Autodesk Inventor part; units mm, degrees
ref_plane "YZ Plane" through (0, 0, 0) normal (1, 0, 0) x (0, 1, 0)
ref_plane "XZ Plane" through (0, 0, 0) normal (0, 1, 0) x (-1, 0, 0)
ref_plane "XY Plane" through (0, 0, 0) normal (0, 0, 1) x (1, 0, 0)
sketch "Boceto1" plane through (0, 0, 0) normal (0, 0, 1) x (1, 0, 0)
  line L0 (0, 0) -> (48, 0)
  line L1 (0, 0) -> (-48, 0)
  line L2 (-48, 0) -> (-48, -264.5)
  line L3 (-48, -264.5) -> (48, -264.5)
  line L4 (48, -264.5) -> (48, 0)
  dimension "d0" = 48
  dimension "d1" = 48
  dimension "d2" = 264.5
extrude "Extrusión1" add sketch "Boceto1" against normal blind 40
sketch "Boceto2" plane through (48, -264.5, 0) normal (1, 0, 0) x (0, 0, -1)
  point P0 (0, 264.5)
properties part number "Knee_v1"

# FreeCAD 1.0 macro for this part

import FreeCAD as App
import Part
import Sketcher
Q = App.Units.Quantity


def add_polygon(sketch, points):
    """Adds a closed chain of lines whose ends are joined by coincident constraints."""
    first, n = sketch.GeometryCount, len(points)
    for a, b in zip(points, points[1:] + points[:1]):
        sketch.addGeometry(Part.LineSegment(App.Vector(*a, 0), App.Vector(*b, 0)), False)
    for i in range(n):
        sketch.addConstraint(Sketcher.Constraint("Coincident", first + i, 2, first + (i + 1) % n, 1))

doc = App.newDocument("Part")
body = doc.addObject("PartDesign::Body", "Body")

# Sketch on XY plane
sketch1 = body.newObject("Sketcher::SketchObject", "Sketch")
sketch1.AttachmentSupport = (doc.getObject("XY_Plane"), [""])
sketch1.MapMode = "FlatFace"
add_polygon(sketch1, [(48, 0), (-48, 0), (-48, -264), (48, -264)])  # lines 0-3
sketch1.addConstraint([
    Sketcher.Constraint("Horizontal", 0),
    Sketcher.Constraint("Vertical", 1),
    Sketcher.Constraint("Horizontal", 2),
    Sketcher.Constraint("Vertical", 3),
    Sketcher.Constraint("Symmetric", 0, 2, 3, 2, -1, 1),
    Sketcher.Constraint("DistanceY", 1, 2, 1, 1, Q("264.5 mm")),
    Sketcher.Constraint("DistanceX", 0, 2, -1, 1, Q("48 mm")),
])
pad1 = body.newObject("PartDesign::Pad", "Pad")
pad1.Profile = sketch1
pad1.Length = 40
pad1.Reversed = True

doc.recompute()
